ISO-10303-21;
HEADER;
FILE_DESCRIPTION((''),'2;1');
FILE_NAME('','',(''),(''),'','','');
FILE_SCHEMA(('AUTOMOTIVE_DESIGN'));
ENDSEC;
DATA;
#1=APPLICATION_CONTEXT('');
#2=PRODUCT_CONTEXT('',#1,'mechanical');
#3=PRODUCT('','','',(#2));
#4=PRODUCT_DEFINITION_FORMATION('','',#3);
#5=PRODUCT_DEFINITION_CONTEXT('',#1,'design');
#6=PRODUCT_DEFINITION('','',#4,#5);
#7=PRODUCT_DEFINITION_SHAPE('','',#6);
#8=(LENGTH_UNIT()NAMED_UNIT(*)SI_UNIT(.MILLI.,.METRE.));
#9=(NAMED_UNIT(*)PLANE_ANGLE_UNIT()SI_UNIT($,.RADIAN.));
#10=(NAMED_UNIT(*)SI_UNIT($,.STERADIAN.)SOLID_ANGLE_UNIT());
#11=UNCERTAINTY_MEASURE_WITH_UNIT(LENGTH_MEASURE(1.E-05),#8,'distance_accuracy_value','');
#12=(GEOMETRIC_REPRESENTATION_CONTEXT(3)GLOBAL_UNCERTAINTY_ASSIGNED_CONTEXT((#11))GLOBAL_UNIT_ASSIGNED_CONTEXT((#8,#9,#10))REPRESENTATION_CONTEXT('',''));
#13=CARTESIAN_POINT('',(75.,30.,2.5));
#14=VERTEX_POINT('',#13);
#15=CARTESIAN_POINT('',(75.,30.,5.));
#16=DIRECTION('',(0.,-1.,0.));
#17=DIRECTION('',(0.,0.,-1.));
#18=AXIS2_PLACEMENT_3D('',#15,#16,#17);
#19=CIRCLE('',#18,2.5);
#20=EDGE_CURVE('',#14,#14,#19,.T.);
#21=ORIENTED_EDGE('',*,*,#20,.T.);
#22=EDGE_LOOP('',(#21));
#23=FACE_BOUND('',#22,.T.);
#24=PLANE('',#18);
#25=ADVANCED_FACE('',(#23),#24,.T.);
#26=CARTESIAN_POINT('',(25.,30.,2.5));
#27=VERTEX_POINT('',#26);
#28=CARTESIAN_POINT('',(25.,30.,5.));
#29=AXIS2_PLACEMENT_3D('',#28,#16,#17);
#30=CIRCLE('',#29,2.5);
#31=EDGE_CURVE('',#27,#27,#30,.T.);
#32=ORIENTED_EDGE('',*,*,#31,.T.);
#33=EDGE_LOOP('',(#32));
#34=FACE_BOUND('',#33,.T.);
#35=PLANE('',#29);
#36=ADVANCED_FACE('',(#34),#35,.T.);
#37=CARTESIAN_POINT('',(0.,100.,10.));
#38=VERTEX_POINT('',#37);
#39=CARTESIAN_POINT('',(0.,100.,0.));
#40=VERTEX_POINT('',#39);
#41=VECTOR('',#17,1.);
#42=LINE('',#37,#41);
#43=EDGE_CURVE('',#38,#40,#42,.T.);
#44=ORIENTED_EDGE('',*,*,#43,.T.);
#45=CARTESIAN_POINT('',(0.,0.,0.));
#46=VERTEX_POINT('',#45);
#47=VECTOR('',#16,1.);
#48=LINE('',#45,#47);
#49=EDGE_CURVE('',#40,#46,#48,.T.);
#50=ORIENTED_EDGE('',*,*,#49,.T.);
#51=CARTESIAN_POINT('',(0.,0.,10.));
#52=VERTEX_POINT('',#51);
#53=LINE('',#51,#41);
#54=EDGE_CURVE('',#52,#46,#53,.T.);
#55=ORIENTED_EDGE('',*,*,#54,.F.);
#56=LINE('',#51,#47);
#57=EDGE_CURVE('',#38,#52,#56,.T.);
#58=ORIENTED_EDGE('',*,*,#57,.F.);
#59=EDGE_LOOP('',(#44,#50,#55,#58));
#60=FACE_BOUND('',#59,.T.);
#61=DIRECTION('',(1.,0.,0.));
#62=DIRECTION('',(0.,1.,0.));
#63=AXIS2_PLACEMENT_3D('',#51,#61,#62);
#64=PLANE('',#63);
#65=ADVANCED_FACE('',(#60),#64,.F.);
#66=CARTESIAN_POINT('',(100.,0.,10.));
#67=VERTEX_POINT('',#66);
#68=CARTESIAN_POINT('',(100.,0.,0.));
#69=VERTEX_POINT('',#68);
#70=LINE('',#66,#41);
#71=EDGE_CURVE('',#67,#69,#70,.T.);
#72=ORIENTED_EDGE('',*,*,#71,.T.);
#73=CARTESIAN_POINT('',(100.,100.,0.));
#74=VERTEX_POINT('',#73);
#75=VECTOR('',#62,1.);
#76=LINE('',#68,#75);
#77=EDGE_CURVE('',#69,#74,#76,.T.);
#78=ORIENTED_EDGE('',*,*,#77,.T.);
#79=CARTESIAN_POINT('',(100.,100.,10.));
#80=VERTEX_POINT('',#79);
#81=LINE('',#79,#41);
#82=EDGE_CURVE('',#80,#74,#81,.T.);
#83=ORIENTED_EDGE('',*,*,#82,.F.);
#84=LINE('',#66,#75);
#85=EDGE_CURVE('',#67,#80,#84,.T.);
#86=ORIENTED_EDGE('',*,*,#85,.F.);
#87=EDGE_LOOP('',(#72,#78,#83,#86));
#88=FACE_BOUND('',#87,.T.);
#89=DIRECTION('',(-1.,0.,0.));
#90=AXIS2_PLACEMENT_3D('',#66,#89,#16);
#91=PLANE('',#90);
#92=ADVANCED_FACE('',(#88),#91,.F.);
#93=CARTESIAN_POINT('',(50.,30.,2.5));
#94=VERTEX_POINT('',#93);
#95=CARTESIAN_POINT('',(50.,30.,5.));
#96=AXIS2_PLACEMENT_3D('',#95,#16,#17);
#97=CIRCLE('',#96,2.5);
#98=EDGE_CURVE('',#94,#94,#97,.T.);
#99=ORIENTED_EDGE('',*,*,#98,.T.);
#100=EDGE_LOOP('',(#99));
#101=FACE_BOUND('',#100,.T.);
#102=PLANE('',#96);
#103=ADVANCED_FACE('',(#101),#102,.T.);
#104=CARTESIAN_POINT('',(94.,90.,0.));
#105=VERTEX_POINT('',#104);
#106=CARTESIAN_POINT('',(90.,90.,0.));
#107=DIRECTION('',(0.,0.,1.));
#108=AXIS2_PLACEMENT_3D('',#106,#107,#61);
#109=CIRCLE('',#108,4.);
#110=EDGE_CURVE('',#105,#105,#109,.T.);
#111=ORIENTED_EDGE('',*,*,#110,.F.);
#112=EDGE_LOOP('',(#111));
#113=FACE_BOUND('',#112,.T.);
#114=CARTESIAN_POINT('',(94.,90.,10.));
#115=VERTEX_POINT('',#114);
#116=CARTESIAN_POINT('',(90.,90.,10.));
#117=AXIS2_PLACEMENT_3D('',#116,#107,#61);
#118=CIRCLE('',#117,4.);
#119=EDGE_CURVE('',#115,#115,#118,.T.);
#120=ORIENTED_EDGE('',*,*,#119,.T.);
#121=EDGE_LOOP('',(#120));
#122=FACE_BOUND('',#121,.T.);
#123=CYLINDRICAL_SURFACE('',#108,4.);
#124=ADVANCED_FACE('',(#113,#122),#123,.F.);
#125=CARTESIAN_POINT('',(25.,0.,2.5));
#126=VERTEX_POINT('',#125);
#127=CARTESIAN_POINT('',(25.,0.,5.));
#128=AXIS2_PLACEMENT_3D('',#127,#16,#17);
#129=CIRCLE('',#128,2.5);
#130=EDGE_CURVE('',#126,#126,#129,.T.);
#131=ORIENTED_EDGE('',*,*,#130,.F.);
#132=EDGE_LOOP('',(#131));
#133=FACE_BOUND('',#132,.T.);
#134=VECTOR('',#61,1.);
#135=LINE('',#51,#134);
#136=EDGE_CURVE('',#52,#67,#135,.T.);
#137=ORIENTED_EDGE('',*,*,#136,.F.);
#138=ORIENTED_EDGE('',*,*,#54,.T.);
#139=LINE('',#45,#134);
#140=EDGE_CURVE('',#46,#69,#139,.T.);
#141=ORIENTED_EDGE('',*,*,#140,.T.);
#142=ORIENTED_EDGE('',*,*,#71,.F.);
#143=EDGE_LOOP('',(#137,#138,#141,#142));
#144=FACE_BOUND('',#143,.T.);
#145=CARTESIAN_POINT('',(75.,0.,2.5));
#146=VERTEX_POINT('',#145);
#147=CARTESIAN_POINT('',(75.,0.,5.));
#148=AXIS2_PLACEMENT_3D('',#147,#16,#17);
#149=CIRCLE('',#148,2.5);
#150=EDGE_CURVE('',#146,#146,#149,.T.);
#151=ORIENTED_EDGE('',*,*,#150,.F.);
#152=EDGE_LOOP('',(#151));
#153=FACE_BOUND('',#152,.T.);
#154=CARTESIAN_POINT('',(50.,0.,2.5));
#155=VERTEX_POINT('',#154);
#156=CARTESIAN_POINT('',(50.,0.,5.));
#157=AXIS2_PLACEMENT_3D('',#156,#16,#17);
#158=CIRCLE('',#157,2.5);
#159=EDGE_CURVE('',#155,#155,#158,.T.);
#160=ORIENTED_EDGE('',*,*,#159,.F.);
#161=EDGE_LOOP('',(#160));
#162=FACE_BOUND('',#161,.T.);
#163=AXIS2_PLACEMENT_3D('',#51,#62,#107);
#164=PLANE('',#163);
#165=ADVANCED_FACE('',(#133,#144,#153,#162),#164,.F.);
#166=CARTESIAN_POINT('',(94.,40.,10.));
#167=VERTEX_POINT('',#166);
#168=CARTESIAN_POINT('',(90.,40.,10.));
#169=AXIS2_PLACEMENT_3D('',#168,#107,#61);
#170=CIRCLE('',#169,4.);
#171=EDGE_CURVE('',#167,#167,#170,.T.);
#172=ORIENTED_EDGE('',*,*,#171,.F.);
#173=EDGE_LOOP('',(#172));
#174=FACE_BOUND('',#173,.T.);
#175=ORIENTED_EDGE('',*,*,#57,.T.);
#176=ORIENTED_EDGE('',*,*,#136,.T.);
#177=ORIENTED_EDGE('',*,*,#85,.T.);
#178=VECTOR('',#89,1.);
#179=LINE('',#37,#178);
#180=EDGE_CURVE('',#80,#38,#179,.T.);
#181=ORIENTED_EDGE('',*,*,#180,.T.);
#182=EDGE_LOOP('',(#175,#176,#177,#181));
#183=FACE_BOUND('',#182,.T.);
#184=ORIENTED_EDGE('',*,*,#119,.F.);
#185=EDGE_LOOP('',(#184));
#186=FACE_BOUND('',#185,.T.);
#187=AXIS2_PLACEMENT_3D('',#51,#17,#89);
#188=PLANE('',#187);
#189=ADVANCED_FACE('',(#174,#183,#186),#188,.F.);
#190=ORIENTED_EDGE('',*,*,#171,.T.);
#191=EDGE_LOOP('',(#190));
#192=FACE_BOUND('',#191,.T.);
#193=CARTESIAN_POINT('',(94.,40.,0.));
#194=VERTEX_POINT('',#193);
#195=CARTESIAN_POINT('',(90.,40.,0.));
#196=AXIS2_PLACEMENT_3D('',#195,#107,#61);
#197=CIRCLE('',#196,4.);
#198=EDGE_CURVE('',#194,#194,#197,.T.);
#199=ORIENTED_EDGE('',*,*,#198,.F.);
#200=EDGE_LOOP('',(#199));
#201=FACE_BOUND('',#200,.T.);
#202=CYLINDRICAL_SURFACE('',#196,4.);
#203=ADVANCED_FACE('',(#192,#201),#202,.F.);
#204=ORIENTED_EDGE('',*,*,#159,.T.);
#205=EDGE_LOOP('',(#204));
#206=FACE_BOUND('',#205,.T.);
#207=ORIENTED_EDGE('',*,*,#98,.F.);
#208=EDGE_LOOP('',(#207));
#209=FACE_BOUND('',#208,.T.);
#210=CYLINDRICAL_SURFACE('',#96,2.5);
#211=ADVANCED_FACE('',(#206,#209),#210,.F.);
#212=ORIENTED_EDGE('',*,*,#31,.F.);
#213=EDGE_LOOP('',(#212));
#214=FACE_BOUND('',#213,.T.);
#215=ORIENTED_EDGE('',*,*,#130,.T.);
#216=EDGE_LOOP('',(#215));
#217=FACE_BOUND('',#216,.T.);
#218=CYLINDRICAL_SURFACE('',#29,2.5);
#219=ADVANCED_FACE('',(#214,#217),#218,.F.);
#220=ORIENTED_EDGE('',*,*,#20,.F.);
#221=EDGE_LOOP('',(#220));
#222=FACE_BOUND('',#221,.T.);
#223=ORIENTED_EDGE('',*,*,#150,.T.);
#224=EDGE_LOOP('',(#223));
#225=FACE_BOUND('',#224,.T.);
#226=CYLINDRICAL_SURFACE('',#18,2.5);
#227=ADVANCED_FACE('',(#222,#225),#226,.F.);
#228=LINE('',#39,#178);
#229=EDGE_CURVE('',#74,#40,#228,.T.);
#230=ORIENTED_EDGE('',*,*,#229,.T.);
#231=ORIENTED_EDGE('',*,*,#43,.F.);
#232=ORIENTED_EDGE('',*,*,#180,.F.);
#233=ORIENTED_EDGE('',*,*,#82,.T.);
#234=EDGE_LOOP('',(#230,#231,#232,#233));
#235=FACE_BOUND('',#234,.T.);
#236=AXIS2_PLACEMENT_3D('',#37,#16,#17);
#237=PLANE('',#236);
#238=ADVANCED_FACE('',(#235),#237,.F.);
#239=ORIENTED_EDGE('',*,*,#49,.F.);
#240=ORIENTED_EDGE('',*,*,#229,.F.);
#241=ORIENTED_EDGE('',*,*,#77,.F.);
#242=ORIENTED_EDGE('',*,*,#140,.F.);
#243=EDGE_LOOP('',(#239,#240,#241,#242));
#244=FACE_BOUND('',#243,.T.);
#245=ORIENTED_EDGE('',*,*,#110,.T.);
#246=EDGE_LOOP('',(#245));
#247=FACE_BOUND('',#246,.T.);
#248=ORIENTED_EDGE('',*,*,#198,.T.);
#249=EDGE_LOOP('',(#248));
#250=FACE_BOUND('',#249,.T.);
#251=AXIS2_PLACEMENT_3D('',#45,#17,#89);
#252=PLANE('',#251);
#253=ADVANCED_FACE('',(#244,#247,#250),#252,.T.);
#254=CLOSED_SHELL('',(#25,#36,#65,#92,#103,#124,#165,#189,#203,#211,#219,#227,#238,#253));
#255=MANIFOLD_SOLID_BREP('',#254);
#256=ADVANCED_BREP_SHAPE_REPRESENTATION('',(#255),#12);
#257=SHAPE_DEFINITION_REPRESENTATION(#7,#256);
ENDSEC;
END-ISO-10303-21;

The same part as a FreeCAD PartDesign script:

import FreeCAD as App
import Part
import Sketcher

doc = App.newDocument("Part")
body = doc.addObject("PartDesign::Body", "Body")

sketch1 = doc.addObject("Sketcher::SketchObject", "Sketch")
body.addObject(sketch1)
sketch1.AttachmentSupport = (doc.XY_Plane, [""])
sketch1.MapMode = "FlatFace"
sketch1.addGeometry(Part.LineSegment(App.Vector(0, 100, 0), App.Vector(0, 0, 0)), False)
sketch1.addGeometry(Part.LineSegment(App.Vector(0, 0, 0), App.Vector(100, 0, 0)), False)
sketch1.addGeometry(Part.LineSegment(App.Vector(100, 0, 0), App.Vector(100, 100, 0)), False)
sketch1.addGeometry(Part.LineSegment(App.Vector(100, 100, 0), App.Vector(0, 100, 0)), False)
sketch1.addConstraint(Sketcher.Constraint("Coincident", 0, 2, 1, 1))
sketch1.addConstraint(Sketcher.Constraint("Coincident", 1, 2, 2, 1))
sketch1.addConstraint(Sketcher.Constraint("Coincident", 2, 2, 3, 1))
sketch1.addConstraint(Sketcher.Constraint("Coincident", 3, 2, 0, 1))
sketch1.addConstraint(Sketcher.Constraint("Vertical", 0))
sketch1.addConstraint(Sketcher.Constraint("Horizontal", 1))
sketch1.addConstraint(Sketcher.Constraint("Vertical", 2))
sketch1.addConstraint(Sketcher.Constraint("Horizontal", 3))
sketch1.addConstraint(Sketcher.Constraint("Coincident", 0, 2, -1, 1))
sketch1.addConstraint(Sketcher.Constraint("Equal", 3, 0))
sketch1.addConstraint(Sketcher.Constraint("DistanceX", 1, 1, 1, 2, 100.0))
pad1 = doc.addObject("PartDesign::Pad", "Pad")
body.addObject(pad1)
pad1.Profile = sketch1
pad1.Length = 10

sketch2 = doc.addObject("Sketcher::SketchObject", "Sketch001")
body.addObject(sketch2)
sketch2.AttachmentSupport = (doc.XZ_Plane, [""])
sketch2.MapMode = "FlatFace"
sketch2.addGeometry(Part.Circle(App.Vector(25, 5, 0), App.Vector(0, 0, 1), 2.5), False)
sketch2.addGeometry(Part.Circle(App.Vector(50, 5, 0), App.Vector(0, 0, 1), 2.5), False)
sketch2.addGeometry(Part.Circle(App.Vector(75, 5, 0), App.Vector(0, 0, 1), 2.5), False)
sketch2.addConstraint(Sketcher.Constraint("Equal", 0, 1))
sketch2.addConstraint(Sketcher.Constraint("Equal", 1, 2))
sketch2.addConstraint(Sketcher.Constraint("Horizontal", 0, 3, 1, 3))
sketch2.addConstraint(Sketcher.Constraint("Horizontal", 1, 3, 2, 3))
sketch2.addConstraint(Sketcher.Constraint("Diameter", 0, 5.0))
sketch2.addConstraint(Sketcher.Constraint("DistanceX", -1, 1, 0, 3, 25.0))
sketch2.addConstraint(Sketcher.Constraint("DistanceY", -1, 1, 0, 3, 5.0))
sketch2.addConstraint(Sketcher.Constraint("DistanceX", -1, 1, 1, 3, 50.0))
sketch2.addConstraint(Sketcher.Constraint("DistanceX", -1, 1, 2, 3, 75.0))
pocket1 = doc.addObject("PartDesign::Pocket", "Pocket")
body.addObject(pocket1)
pocket1.Profile = sketch2
pocket1.Length = 30

sketch3 = doc.addObject("Sketcher::SketchObject", "Sketch002")
body.addObject(sketch3)
sketch3.AttachmentSupport = (doc.XY_Plane, [""])
sketch3.MapMode = "FlatFace"
sketch3.AttachmentOffset = App.Placement(App.Vector(0, 0, 10), App.Rotation())
sketch3.addGeometry(Part.Circle(App.Vector(90, 90, 0), App.Vector(0, 0, 1), 4), False)
sketch3.addGeometry(Part.Circle(App.Vector(90, 40, 0), App.Vector(0, 0, 1), 4), False)
sketch3.addConstraint(Sketcher.Constraint("Equal", 0, 1))
sketch3.addConstraint(Sketcher.Constraint("Vertical", 0, 3, 1, 3))
sketch3.addConstraint(Sketcher.Constraint("Diameter", 0, 8.0))
sketch3.addConstraint(Sketcher.Constraint("DistanceX", -1, 1, 0, 3, 90.0))
sketch3.addConstraint(Sketcher.Constraint("DistanceY", -1, 1, 0, 3, 90.0))
sketch3.addConstraint(Sketcher.Constraint("DistanceY", -1, 1, 1, 3, 40.0))
pocket2 = doc.addObject("PartDesign::Pocket", "Pocket001")
body.addObject(pocket2)
pocket2.Profile = sketch3
pocket2.Length = 10

doc.recompute()
